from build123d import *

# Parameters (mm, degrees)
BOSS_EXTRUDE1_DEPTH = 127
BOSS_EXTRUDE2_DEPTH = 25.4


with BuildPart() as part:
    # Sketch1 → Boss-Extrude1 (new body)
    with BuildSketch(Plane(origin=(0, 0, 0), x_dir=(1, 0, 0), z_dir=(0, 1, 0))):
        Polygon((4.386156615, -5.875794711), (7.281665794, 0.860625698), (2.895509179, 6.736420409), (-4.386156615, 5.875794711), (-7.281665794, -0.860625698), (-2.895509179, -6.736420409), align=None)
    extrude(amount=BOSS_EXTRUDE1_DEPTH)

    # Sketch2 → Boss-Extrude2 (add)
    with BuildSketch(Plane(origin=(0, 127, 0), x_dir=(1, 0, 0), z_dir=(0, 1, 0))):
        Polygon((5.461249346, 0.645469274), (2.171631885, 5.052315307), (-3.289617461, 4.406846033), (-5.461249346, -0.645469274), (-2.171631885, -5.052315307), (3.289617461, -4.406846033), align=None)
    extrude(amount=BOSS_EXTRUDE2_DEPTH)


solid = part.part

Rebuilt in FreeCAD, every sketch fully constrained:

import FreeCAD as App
import Part
import Sketcher
Q = App.Units.Quantity


def add_polygon(sketch, points):
    """Adds a closed chain of lines whose ends are joined by coincident constraints."""
    first, n = sketch.GeometryCount, len(points)
    for a, b in zip(points, points[1:] + points[:1]):
        sketch.addGeometry(Part.LineSegment(App.Vector(*a, 0), App.Vector(*b, 0)), False)
    for i in range(n):
        sketch.addConstraint(Sketcher.Constraint("Coincident", first + i, 2, first + (i + 1) % n, 1))

doc = App.newDocument("Part")
body = doc.addObject("PartDesign::Body", "Body")

# Sketch on XZ plane
sketch1 = doc.addObject("Sketcher::SketchObject", "Sketch")
body.addObject(sketch1)
sketch1.AttachmentSupport = (doc.XZ_Plane, [""])
sketch1.MapMode = "FlatFace"
add_polygon(sketch1, [(4, 6), (7, -1), (3, -7), (-4, -6), (-7, 1), (-3, 7)])  # lines 0-5
sketch1.addConstraint(Sketcher.Constraint("Symmetric", 0, 2, 3, 2, -1, 1))
sketch1.addConstraint(Sketcher.Constraint("Symmetric", 1, 2, 4, 2, -1, 1))
sketch1.addConstraint(Sketcher.Constraint("Symmetric", 2, 2, 5, 2, -1, 1))
sketch1.addConstraint(Sketcher.Constraint("Equal", 0, 1))
sketch1.addConstraint(Sketcher.Constraint("Equal", 1, 2))
sketch1.addConstraint(Sketcher.Constraint("Distance", 0, Q("7.332348 mm")))
sketch1.addConstraint(Sketcher.Constraint("DistanceX", -1, 1, 1, 2, Q("2.895509 mm")))
sketch1.addConstraint(Sketcher.Constraint("DistanceY", 1, 2, -1, 1, Q("6.73642 mm")))
sketch1.addConstraint(Sketcher.Constraint("DistanceY", 2, 2, 0, 2, Q("5.015169 mm")))
pad1 = doc.addObject("PartDesign::Pad", "Pad")
body.addObject(pad1)
pad1.Profile = sketch1
pad1.Length = Q("5 in")
pad1.Reversed = True

# Sketch on XZ plane
sketch2 = doc.addObject("Sketcher::SketchObject", "Sketch001")
body.addObject(sketch2)
sketch2.AttachmentSupport = (doc.XZ_Plane, [""])
sketch2.MapMode = "FlatFace"
sketch2.AttachmentOffset = App.Placement(App.Vector(0, 0, -5 * 25.4), App.Rotation())
add_polygon(sketch2, [(5, -1), (2, -5), (-3, -4), (-5, 1), (-2, 5), (3, 4)])  # lines 0-5
sketch2.addConstraint(Sketcher.Constraint("Symmetric", 0, 2, 3, 2, -1, 1))
sketch2.addConstraint(Sketcher.Constraint("Symmetric", 1, 2, 4, 2, -1, 1))
sketch2.addConstraint(Sketcher.Constraint("Symmetric", 2, 2, 5, 2, -1, 1))
sketch2.addConstraint(Sketcher.Constraint("Equal", 0, 1))
sketch2.addConstraint(Sketcher.Constraint("Equal", 1, 2))
sketch2.addConstraint(Sketcher.Constraint("DistanceX", 2, 2, 5, 2, Q("10.922499 mm")))
sketch2.addConstraint(Sketcher.Constraint("Distance", 0, Q("5.499261 mm")))
sketch2.addConstraint(Sketcher.Constraint("DistanceX", -1, 1, 0, 2, Q("2.171632 mm")))
sketch2.addConstraint(Sketcher.Constraint("DistanceY", -1, 1, 2, 2, Q("0.645469 mm")))
pad2 = doc.addObject("PartDesign::Pad", "Pad001")
body.addObject(pad2)
pad2.Profile = sketch2
pad2.Length = Q("1 in")
pad2.Reversed = True

doc.recompute()
